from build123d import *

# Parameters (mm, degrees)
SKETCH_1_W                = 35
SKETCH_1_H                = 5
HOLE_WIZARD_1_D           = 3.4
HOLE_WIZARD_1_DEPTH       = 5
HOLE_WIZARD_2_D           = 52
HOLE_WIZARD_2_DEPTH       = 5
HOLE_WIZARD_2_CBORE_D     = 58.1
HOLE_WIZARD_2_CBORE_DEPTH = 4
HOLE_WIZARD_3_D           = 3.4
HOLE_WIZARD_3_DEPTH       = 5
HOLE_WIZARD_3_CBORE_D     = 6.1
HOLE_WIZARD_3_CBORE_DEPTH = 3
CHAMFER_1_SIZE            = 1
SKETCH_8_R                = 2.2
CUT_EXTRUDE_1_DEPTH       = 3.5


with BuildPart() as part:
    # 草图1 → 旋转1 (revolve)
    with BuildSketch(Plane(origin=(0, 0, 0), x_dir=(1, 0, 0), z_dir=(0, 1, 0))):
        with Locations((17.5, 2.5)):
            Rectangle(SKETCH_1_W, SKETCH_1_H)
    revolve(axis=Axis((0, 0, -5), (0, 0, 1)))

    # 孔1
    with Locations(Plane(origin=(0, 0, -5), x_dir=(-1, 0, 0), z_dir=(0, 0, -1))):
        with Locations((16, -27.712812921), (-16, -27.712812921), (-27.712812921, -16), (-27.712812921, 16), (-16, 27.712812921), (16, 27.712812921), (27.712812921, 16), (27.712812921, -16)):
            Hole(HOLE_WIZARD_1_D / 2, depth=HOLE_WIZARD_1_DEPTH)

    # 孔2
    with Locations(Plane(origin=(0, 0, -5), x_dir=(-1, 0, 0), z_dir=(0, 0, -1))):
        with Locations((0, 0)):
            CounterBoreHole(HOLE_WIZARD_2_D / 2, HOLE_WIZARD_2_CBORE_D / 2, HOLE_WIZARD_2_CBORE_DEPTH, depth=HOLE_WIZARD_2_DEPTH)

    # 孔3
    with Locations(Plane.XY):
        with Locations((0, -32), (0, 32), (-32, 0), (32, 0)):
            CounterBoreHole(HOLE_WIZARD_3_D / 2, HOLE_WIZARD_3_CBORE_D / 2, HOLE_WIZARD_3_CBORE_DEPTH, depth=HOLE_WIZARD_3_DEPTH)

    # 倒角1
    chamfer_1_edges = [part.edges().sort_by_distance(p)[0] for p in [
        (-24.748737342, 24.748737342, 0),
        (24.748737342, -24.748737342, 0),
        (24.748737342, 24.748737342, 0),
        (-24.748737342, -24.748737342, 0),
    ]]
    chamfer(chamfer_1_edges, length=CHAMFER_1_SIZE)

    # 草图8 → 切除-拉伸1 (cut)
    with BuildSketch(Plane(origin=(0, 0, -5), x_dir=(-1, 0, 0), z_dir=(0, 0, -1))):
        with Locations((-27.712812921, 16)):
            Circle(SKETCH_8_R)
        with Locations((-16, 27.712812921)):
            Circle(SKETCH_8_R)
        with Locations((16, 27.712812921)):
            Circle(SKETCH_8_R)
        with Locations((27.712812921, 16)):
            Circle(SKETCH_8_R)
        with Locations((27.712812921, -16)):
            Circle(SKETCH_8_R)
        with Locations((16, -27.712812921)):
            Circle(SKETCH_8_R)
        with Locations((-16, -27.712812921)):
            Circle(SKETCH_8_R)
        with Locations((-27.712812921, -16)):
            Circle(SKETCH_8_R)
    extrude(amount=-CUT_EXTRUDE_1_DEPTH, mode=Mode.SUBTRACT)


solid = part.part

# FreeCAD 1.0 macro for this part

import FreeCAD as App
import Part
import Sketcher

V = App.Vector


def edges_at(feature, points):
    """Names of the edges that pass closest to the given points."""
    edges = feature.Shape.Edges
    near = lambda p: min(range(len(edges)), key=lambda i: edges[i].distToShape(Part.Vertex(*p))[0])
    return sorted({f"Edge{near(p) + 1}" for p in points})

doc = App.newDocument("Part")
params = doc.addObject("Spreadsheet::Sheet", "Params")
for row, (alias, value) in enumerate([
    ("sketch1_width", "35 mm"),
    ("sketch1_height", "5 mm"),
    ("revolution_angle", "360 deg"),
    ("sketch2_diameter", "3.4 mm"),
    ("hole_diameter", "3.4 mm"),
    ("hole_depth", "5 mm"),
    ("sketch3_diameter", "52 mm"),
    ("hole2_diameter", "52 mm"),
    ("hole2_depth", "5 mm"),
    ("hole2_cbore_diameter", "58.1 mm"),
    ("hole2_cbore_depth", "4 mm"),
    ("sketch4_diameter", "3.4 mm"),
    ("hole3_diameter", "3.4 mm"),
    ("hole3_depth", "5 mm"),
    ("hole3_cbore_diameter", "6.1 mm"),
    ("hole3_cbore_depth", "3 mm"),
    ("chamfer_size", "1 mm"),
    ("sketch5_diameter", "4.4 mm"),
    ("pocket1_length", "3.5 mm"),
], start=1):
    params.set(f"A{row}", alias)
    params.set(f"B{row}", "=" + value)
    params.setAlias(f"B{row}", alias)

body = doc.addObject("PartDesign::Body", "Body")

sketch1 = doc.addObject("Sketcher::SketchObject", "Sketch")
body.addObject(sketch1)
sketch1.AttachmentSupport = (doc.XZ_Plane, [""])
sketch1.MapMode = "FlatFace"
sketch1.addGeometry([
    Part.LineSegment(V(0, -5, 0), V(0, 0, 0)),
    Part.LineSegment(V(0, 0, 0), V(35, 0, 0)),
    Part.LineSegment(V(35, 0, 0), V(35, -5, 0)),
    Part.LineSegment(V(35, -5, 0), V(0, -5, 0)),
], False)
sketch1.addConstraint([
    Sketcher.Constraint("Coincident", 0, 2, 1, 1),
    Sketcher.Constraint("Coincident", 1, 2, 2, 1),
    Sketcher.Constraint("Coincident", 2, 2, 3, 1),
    Sketcher.Constraint("Coincident", 3, 2, 0, 1),
    Sketcher.Constraint("Vertical", 0),
    Sketcher.Constraint("Horizontal", 1),
    Sketcher.Constraint("Vertical", 2),
    Sketcher.Constraint("Horizontal", 3),
    Sketcher.Constraint("Coincident", 0, 2, -1, 1),
    Sketcher.Constraint("DistanceX", 1, 1, 1, 2, 35.0),
    Sketcher.Constraint("DistanceY", 0, 1, 0, 2, 5.0),
])
sketch1.setExpression("Constraints[9]", "Params.sketch1_width")
sketch1.setExpression("Constraints[10]", "Params.sketch1_height")
revolution = doc.addObject("PartDesign::Revolution", "Revolution")
body.addObject(revolution)
revolution.Profile = sketch1
revolution.ReferenceAxis = (sketch1, ["V_Axis"])
revolution.setExpression("Angle", "Params.revolution_angle")

sketch2 = doc.addObject("Sketcher::SketchObject", "Sketch001")
body.addObject(sketch2)
sketch2.AttachmentSupport = (doc.XY_Plane, [""])
sketch2.MapMode = "FlatFace"
sketch2.AttachmentOffset = App.Placement(V(0, 0, -5), App.Rotation())
sketch2.addGeometry([
    Part.Circle(V(-16, -27.7, 0), V(0, 0, 1), 1.7),
    Part.Circle(V(16, -27.7, 0), V(0, 0, 1), 1.7),
    Part.Circle(V(27.7, -16, 0), V(0, 0, 1), 1.7),
    Part.Circle(V(27.7, 16, 0), V(0, 0, 1), 1.7),
    Part.Circle(V(16, 27.7, 0), V(0, 0, 1), 1.7),
    Part.Circle(V(-16, 27.7, 0), V(0, 0, 1), 1.7),
    Part.Circle(V(-27.7, 16, 0), V(0, 0, 1), 1.7),
    Part.Circle(V(-27.7, -16, 0), V(0, 0, 1), 1.7),
], False)
sketch2.addConstraint([
    Sketcher.Constraint("Equal", 0, 1),
    Sketcher.Constraint("Equal", 1, 2),
    Sketcher.Constraint("Equal", 2, 3),
    Sketcher.Constraint("Equal", 3, 4),
    Sketcher.Constraint("Equal", 4, 5),
    Sketcher.Constraint("Equal", 5, 6),
    Sketcher.Constraint("Equal", 6, 7),
    Sketcher.Constraint("Symmetric", 0, 3, 4, 3, -1, 1),
    Sketcher.Constraint("Symmetric", 1, 3, 5, 3, -1, 1),
    Sketcher.Constraint("Symmetric", 2, 3, 6, 3, -1, 1),
    Sketcher.Constraint("Symmetric", 3, 3, 7, 3, -1, 1),
    Sketcher.Constraint("Symmetric", 0, 3, 1, 3, -2),
    Sketcher.Constraint("Symmetric", 3, 3, 6, 3, -2),
    Sketcher.Constraint("Diameter", 0, 3.4),
    Sketcher.Constraint("DistanceX", 0, 3, -1, 1, 16.0),
    Sketcher.Constraint("DistanceY", 2, 3, -1, 1, 16.0),
    Sketcher.Constraint("DistanceY", 0, 3, -1, 1, 27.712813),
    Sketcher.Constraint("DistanceX", -1, 1, 2, 3, 27.712813),
])
sketch2.setExpression("Constraints[13]", "Params.sketch2_diameter")
doc.recompute()
hole = doc.addObject("PartDesign::Hole", "Hole")
body.addObject(hole)
hole.Profile = sketch2
hole.ThreadType = "None"
hole.setExpression("Diameter", "Params.hole_diameter")
hole.DepthType = "Dimension"
hole.setExpression("Depth", "Params.hole_depth")
hole.DrillPoint = "Flat"
hole.Reversed = True

sketch3 = doc.addObject("Sketcher::SketchObject", "Sketch002")
body.addObject(sketch3)
sketch3.AttachmentSupport = (doc.XY_Plane, [""])
sketch3.MapMode = "FlatFace"
sketch3.AttachmentOffset = App.Placement(V(0, 0, -5), App.Rotation())
sketch3.addGeometry(Part.Circle(V(0, 0, 0), V(0, 0, 1), 26), False)
sketch3.addConstraint([
    Sketcher.Constraint("Coincident", 0, 3, -1, 1),
    Sketcher.Constraint("Diameter", 0, 52.0),
])
sketch3.setExpression("Constraints[1]", "Params.sketch3_diameter")
doc.recompute()
hole2 = doc.addObject("PartDesign::Hole", "Hole001")
body.addObject(hole2)
hole2.Profile = sketch3
hole2.ThreadType = "None"
hole2.setExpression("Diameter", "Params.hole2_diameter")
hole2.DepthType = "Dimension"
hole2.setExpression("Depth", "Params.hole2_depth")
hole2.DrillPoint = "Flat"
hole2.HoleCutType = "Counterbore"
hole2.setExpression("HoleCutDiameter", "Params.hole2_cbore_diameter")
hole2.setExpression("HoleCutDepth", "Params.hole2_cbore_depth")
hole2.Reversed = True

sketch4 = doc.addObject("Sketcher::SketchObject", "Sketch003")
body.addObject(sketch4)
sketch4.AttachmentSupport = (doc.XY_Plane, [""])
sketch4.MapMode = "FlatFace"
sketch4.addGeometry([
    Part.Circle(V(0, -32, 0), V(0, 0, 1), 1.7),
    Part.Circle(V(0, 32, 0), V(0, 0, 1), 1.7),
    Part.Circle(V(-32, 0, 0), V(0, 0, 1), 1.7),
    Part.Circle(V(32, 0, 0), V(0, 0, 1), 1.7),
], False)
sketch4.addConstraint([
    Sketcher.Constraint("Equal", 0, 1),
    Sketcher.Constraint("Equal", 1, 2),
    Sketcher.Constraint("Equal", 2, 3),
    Sketcher.Constraint("Symmetric", 0, 3, 1, 3, -1, 1),
    Sketcher.Constraint("Symmetric", 2, 3, 3, 3, -1, 1),
    Sketcher.Constraint("PointOnObject", 0, 3, -2),
    Sketcher.Constraint("PointOnObject", 2, 3, -1),
    Sketcher.Constraint("Diameter", 0, 3.4),
    Sketcher.Constraint("DistanceY", 0, 3, -1, 1, 32.0),
    Sketcher.Constraint("DistanceX", 2, 3, -1, 1, 32.0),
])
sketch4.setExpression("Constraints[7]", "Params.sketch4_diameter")
doc.recompute()
hole3 = doc.addObject("PartDesign::Hole", "Hole002")
body.addObject(hole3)
hole3.Profile = sketch4
hole3.ThreadType = "None"
hole3.setExpression("Diameter", "Params.hole3_diameter")
hole3.DepthType = "Dimension"
hole3.setExpression("Depth", "Params.hole3_depth")
hole3.DrillPoint = "Flat"
hole3.HoleCutType = "Counterbore"
hole3.setExpression("HoleCutDiameter", "Params.hole3_cbore_diameter")
hole3.setExpression("HoleCutDepth", "Params.hole3_cbore_depth")
doc.recompute()

chamfer = doc.addObject("PartDesign::Chamfer", "Chamfer")
body.addObject(chamfer)
chamfer.Base = (hole3, edges_at(hole3, [
    (-24.749, 24.749, 0),
    (24.749, -24.749, 0),
    (24.749, 24.749, 0),
    (-24.749, -24.749, 0),
]))
chamfer.setExpression("Size", "Params.chamfer_size")

sketch5 = doc.addObject("Sketcher::SketchObject", "Sketch004")
body.addObject(sketch5)
sketch5.AttachmentSupport = (doc.XY_Plane, [""])
sketch5.MapMode = "FlatFace"
sketch5.AttachmentOffset = App.Placement(V(0, 0, -5), App.Rotation())
sketch5.addGeometry([
    Part.Circle(V(27.7, 16, 0), V(0, 0, 1), 2.2),
    Part.Circle(V(16, 27.7, 0), V(0, 0, 1), 2.2),
    Part.Circle(V(-16, 27.7, 0), V(0, 0, 1), 2.2),
    Part.Circle(V(-27.7, 16, 0), V(0, 0, 1), 2.2),
    Part.Circle(V(-27.7, -16, 0), V(0, 0, 1), 2.2),
    Part.Circle(V(-16, -27.7, 0), V(0, 0, 1), 2.2),
    Part.Circle(V(16, -27.7, 0), V(0, 0, 1), 2.2),
    Part.Circle(V(27.7, -16, 0), V(0, 0, 1), 2.2),
], False)
sketch5.addConstraint([
    Sketcher.Constraint("Equal", 0, 1),
    Sketcher.Constraint("Equal", 1, 2),
    Sketcher.Constraint("Equal", 2, 3),
    Sketcher.Constraint("Equal", 3, 4),
    Sketcher.Constraint("Equal", 4, 5),
    Sketcher.Constraint("Equal", 5, 6),
    Sketcher.Constraint("Equal", 6, 7),
    Sketcher.Constraint("Symmetric", 0, 3, 4, 3, -1, 1),
    Sketcher.Constraint("Symmetric", 1, 3, 5, 3, -1, 1),
    Sketcher.Constraint("Symmetric", 2, 3, 6, 3, -1, 1),
    Sketcher.Constraint("Symmetric", 3, 3, 7, 3, -1, 1),
    Sketcher.Constraint("Symmetric", 1, 3, 2, 3, -2),
    Sketcher.Constraint("Symmetric", 0, 3, 3, 3, -2),
    Sketcher.Constraint("Diameter", 0, 4.4),
    Sketcher.Constraint("DistanceY", -1, 1, 0, 3, 16.0),
    Sketcher.Constraint("DistanceX", -1, 1, 1, 3, 16.0),
    Sketcher.Constraint("DistanceX", -1, 1, 0, 3, 27.712813),
    Sketcher.Constraint("DistanceY", -1, 1, 1, 3, 27.712813),
])
sketch5.setExpression("Constraints[13]", "Params.sketch5_diameter")
pocket1 = doc.addObject("PartDesign::Pocket", "Pocket")
body.addObject(pocket1)
pocket1.Profile = sketch5
pocket1.setExpression("Length", "Params.pocket1_length")
pocket1.Reversed = True

doc.recompute()
